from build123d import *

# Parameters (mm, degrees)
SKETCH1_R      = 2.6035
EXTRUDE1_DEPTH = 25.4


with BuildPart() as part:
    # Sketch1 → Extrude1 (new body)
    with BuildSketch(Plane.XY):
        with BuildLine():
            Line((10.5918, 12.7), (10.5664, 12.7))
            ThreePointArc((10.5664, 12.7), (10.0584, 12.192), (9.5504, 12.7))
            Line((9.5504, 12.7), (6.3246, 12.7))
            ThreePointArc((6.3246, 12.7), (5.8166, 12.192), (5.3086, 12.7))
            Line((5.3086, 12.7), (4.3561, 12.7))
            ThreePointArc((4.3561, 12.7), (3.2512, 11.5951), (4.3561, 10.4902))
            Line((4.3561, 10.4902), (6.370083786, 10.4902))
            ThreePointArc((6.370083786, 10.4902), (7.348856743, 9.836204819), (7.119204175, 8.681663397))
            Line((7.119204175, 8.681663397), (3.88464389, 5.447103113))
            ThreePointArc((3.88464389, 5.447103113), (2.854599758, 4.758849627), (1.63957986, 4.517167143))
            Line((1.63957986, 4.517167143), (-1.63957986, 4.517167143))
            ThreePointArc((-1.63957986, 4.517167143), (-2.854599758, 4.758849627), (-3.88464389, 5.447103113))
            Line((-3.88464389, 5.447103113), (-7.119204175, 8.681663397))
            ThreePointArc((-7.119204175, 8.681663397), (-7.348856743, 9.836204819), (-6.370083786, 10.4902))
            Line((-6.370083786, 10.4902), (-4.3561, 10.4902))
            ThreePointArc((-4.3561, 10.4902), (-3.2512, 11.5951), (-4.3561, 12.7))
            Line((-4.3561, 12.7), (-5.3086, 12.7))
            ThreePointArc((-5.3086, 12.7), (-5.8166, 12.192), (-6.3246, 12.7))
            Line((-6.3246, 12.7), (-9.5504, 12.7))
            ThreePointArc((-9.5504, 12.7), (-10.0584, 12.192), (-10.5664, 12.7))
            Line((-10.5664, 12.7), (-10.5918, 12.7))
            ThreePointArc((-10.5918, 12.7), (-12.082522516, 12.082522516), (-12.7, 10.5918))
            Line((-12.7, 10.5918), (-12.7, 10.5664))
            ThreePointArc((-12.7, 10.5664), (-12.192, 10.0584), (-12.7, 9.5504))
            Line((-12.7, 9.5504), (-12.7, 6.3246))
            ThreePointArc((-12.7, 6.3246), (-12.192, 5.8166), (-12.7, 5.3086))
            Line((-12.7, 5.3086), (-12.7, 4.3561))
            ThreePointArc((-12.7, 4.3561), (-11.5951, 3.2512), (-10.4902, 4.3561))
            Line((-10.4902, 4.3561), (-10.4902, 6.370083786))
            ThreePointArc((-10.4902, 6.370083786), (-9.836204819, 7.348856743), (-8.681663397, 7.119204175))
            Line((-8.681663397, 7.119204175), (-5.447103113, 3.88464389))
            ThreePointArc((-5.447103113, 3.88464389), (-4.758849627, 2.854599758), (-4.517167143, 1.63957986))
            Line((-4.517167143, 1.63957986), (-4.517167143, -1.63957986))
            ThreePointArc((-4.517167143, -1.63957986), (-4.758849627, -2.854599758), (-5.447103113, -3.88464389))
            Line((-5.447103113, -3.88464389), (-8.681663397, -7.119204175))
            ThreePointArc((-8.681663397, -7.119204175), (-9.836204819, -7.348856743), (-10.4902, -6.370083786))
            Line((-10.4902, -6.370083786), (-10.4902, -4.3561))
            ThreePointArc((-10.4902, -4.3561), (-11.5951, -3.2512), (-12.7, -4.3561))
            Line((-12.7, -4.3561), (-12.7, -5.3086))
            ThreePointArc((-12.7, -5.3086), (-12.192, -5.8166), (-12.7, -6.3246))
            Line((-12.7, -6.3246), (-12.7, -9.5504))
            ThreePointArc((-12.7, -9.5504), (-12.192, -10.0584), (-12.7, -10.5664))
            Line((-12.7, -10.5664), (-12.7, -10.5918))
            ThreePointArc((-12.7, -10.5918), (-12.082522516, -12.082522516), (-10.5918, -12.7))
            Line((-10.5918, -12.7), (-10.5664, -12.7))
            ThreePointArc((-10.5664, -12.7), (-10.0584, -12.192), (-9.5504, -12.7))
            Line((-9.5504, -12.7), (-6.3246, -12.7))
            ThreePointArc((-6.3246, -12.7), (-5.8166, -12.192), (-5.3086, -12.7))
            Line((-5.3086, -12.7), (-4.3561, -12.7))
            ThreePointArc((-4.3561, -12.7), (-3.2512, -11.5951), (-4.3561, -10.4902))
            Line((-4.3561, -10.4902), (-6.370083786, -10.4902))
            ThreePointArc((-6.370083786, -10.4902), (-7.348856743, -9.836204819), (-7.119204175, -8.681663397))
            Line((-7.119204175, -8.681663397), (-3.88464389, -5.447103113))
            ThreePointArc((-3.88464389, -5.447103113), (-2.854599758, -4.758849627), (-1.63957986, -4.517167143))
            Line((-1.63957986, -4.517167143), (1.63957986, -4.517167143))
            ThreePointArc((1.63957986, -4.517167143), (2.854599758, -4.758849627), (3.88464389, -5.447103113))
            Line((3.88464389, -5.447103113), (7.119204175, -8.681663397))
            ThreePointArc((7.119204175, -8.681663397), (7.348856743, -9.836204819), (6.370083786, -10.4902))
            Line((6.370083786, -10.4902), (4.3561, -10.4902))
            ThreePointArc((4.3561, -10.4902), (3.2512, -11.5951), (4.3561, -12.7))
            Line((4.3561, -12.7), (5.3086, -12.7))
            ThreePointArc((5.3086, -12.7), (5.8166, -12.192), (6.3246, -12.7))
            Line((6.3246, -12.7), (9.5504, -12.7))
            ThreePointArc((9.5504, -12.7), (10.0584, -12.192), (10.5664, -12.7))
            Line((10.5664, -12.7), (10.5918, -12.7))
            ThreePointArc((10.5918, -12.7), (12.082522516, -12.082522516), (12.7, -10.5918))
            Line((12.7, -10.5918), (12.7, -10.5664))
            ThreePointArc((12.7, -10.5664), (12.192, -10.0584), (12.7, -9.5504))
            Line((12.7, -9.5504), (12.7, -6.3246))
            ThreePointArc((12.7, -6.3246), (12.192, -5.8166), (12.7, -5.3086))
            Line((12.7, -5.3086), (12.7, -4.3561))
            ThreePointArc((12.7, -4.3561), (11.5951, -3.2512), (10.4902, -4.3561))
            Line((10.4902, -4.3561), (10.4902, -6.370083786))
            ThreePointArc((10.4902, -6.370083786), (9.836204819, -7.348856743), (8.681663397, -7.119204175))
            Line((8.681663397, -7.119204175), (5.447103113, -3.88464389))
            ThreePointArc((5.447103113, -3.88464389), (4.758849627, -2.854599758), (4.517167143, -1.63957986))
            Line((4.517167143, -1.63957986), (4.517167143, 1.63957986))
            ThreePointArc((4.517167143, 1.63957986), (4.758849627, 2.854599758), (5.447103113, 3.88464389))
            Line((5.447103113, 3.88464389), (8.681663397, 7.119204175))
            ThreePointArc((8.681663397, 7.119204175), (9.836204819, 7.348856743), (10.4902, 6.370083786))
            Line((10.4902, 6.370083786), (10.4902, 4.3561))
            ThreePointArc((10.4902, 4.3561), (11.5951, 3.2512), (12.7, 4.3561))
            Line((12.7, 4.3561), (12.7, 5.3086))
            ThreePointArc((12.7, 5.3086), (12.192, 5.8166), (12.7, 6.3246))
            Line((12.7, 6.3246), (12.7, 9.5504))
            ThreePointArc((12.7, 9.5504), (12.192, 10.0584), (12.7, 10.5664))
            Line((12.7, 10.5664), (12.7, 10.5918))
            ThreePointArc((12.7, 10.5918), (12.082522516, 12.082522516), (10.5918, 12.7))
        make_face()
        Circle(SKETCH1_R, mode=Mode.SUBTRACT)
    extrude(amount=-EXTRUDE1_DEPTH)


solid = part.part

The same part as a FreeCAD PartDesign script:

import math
import FreeCAD as App
import Part
import Sketcher
Q = App.Units.Quantity

doc = App.newDocument("Part")
body = doc.addObject("PartDesign::Body", "Body")

# Sketch on XY plane
sketch1 = body.newObject("Sketcher::SketchObject", "Sketch")
sketch1.AttachmentSupport = (doc.getObject("XY_Plane"), [""])
sketch1.MapMode = "FlatFace"
sketch1.addGeometry(Part.LineSegment(App.Vector(10.5918, 12.7, 0), App.Vector(10.5664, 12.7, 0)), False)
sketch1.addGeometry(Part.ArcOfCircle(Part.Circle(App.Vector(10.0584, 12.7, 0), App.Vector(0, 0, 1), 0.508), math.radians(180), math.radians(360)), False)
sketch1.addGeometry(Part.LineSegment(App.Vector(9.5504, 12.7, 0), App.Vector(6.3246, 12.7, 0)), False)
sketch1.addGeometry(Part.ArcOfCircle(Part.Circle(App.Vector(5.8166, 12.7, 0), App.Vector(0, 0, 1), 0.508), math.radians(180), math.radians(360)), False)
sketch1.addGeometry(Part.LineSegment(App.Vector(5.3086, 12.7, 0), App.Vector(4.3561, 12.7, 0)), False)
sketch1.addGeometry(Part.ArcOfCircle(Part.Circle(App.Vector(4.3561, 11.5951, 0), App.Vector(0, 0, 1), 1.1049), math.radians(90), math.radians(270)), False)
sketch1.addGeometry(Part.LineSegment(App.Vector(4.3561, 10.4902, 0), App.Vector(6.370084, 10.4902, 0)), False)
sketch1.addGeometry(Part.ArcOfCircle(Part.Circle(App.Vector(6.370084, 9.430784, 0), App.Vector(0, 0, 1), 1.059416), math.radians(-45), math.radians(90)), False)
sketch1.addGeometry(Part.LineSegment(App.Vector(7.119204, 8.681663, 0), App.Vector(3.884644, 5.447103, 0)), False)
sketch1.addGeometry(Part.ArcOfCircle(Part.Circle(App.Vector(1.63958, 7.692167, 0), App.Vector(0, 0, 1), 3.175), math.radians(-90), math.radians(-45)), False)
sketch1.addGeometry(Part.LineSegment(App.Vector(1.63958, 4.517167, 0), App.Vector(-1.63958, 4.517167, 0)), False)
sketch1.addGeometry(Part.ArcOfCircle(Part.Circle(App.Vector(-1.63958, 7.692167, 0), App.Vector(0, 0, 1), 3.175), math.radians(-135), math.radians(-90)), False)
sketch1.addGeometry(Part.LineSegment(App.Vector(-3.884644, 5.447103, 0), App.Vector(-7.119204, 8.681663, 0)), False)
sketch1.addGeometry(Part.ArcOfCircle(Part.Circle(App.Vector(-6.370084, 9.430784, 0), App.Vector(0, 0, 1), 1.059416), math.radians(90), math.radians(225)), False)
sketch1.addGeometry(Part.LineSegment(App.Vector(-6.370084, 10.4902, 0), App.Vector(-4.3561, 10.4902, 0)), False)
sketch1.addGeometry(Part.ArcOfCircle(Part.Circle(App.Vector(-4.3561, 11.5951, 0), App.Vector(0, 0, 1), 1.1049), math.radians(-90), math.radians(90)), False)
sketch1.addGeometry(Part.LineSegment(App.Vector(-4.3561, 12.7, 0), App.Vector(-5.3086, 12.7, 0)), False)
sketch1.addGeometry(Part.ArcOfCircle(Part.Circle(App.Vector(-5.8166, 12.7, 0), App.Vector(0, 0, 1), 0.508), math.radians(180), math.radians(360)), False)
sketch1.addGeometry(Part.LineSegment(App.Vector(-6.3246, 12.7, 0), App.Vector(-9.5504, 12.7, 0)), False)
sketch1.addGeometry(Part.ArcOfCircle(Part.Circle(App.Vector(-10.0584, 12.7, 0), App.Vector(0, 0, 1), 0.508), math.radians(180), math.radians(360)), False)
sketch1.addGeometry(Part.LineSegment(App.Vector(-10.5664, 12.7, 0), App.Vector(-10.5918, 12.7, 0)), False)
sketch1.addGeometry(Part.ArcOfCircle(Part.Circle(App.Vector(-10.5918, 10.5918, 0), App.Vector(0, 0, 1), 2.1082), math.radians(90), math.radians(180)), False)
sketch1.addGeometry(Part.LineSegment(App.Vector(-12.7, 10.5918, 0), App.Vector(-12.7, 10.5664, 0)), False)
sketch1.addGeometry(Part.ArcOfCircle(Part.Circle(App.Vector(-12.7, 10.0584, 0), App.Vector(0, 0, 1), 0.508), math.radians(-90), math.radians(90)), False)
sketch1.addGeometry(Part.LineSegment(App.Vector(-12.7, 9.5504, 0), App.Vector(-12.7, 6.3246, 0)), False)
sketch1.addGeometry(Part.ArcOfCircle(Part.Circle(App.Vector(-12.7, 5.8166, 0), App.Vector(0, 0, 1), 0.508), math.radians(-90), math.radians(90)), False)
sketch1.addGeometry(Part.LineSegment(App.Vector(-12.7, 5.3086, 0), App.Vector(-12.7, 4.3561, 0)), False)
sketch1.addGeometry(Part.ArcOfCircle(Part.Circle(App.Vector(-11.5951, 4.3561, 0), App.Vector(0, 0, 1), 1.1049), math.radians(180), math.radians(360)), False)
sketch1.addGeometry(Part.LineSegment(App.Vector(-10.4902, 4.3561, 0), App.Vector(-10.4902, 6.370084, 0)), False)
sketch1.addGeometry(Part.ArcOfCircle(Part.Circle(App.Vector(-9.430784, 6.370084, 0), App.Vector(0, 0, 1), 1.059416), math.radians(45), math.radians(180)), False)
sketch1.addGeometry(Part.LineSegment(App.Vector(-8.681663, 7.119204, 0), App.Vector(-5.447103, 3.884644, 0)), False)
sketch1.addGeometry(Part.ArcOfCircle(Part.Circle(App.Vector(-7.692167, 1.63958, 0), App.Vector(0, 0, 1), 3.175), math.radians(0), math.radians(45)), False)
sketch1.addGeometry(Part.LineSegment(App.Vector(-4.517167, 1.63958, 0), App.Vector(-4.517167, -1.63958, 0)), False)
sketch1.addGeometry(Part.ArcOfCircle(Part.Circle(App.Vector(-7.692167, -1.63958, 0), App.Vector(0, 0, 1), 3.175), math.radians(-45), math.radians(0)), False)
sketch1.addGeometry(Part.LineSegment(App.Vector(-5.447103, -3.884644, 0), App.Vector(-8.681663, -7.119204, 0)), False)
sketch1.addGeometry(Part.ArcOfCircle(Part.Circle(App.Vector(-9.430784, -6.370084, 0), App.Vector(0, 0, 1), 1.059416), math.radians(180), math.radians(315)), False)
sketch1.addGeometry(Part.LineSegment(App.Vector(-10.4902, -6.370084, 0), App.Vector(-10.4902, -4.3561, 0)), False)
sketch1.addGeometry(Part.ArcOfCircle(Part.Circle(App.Vector(-11.5951, -4.3561, 0), App.Vector(0, 0, 1), 1.1049), math.radians(0), math.radians(180)), False)
sketch1.addGeometry(Part.LineSegment(App.Vector(-12.7, -4.3561, 0), App.Vector(-12.7, -5.3086, 0)), False)
sketch1.addGeometry(Part.ArcOfCircle(Part.Circle(App.Vector(-12.7, -5.8166, 0), App.Vector(0, 0, 1), 0.508), math.radians(-90), math.radians(90)), False)
sketch1.addGeometry(Part.LineSegment(App.Vector(-12.7, -6.3246, 0), App.Vector(-12.7, -9.5504, 0)), False)
sketch1.addGeometry(Part.ArcOfCircle(Part.Circle(App.Vector(-12.7, -10.0584, 0), App.Vector(0, 0, 1), 0.508), math.radians(-90), math.radians(90)), False)
sketch1.addGeometry(Part.LineSegment(App.Vector(-12.7, -10.5664, 0), App.Vector(-12.7, -10.5918, 0)), False)
sketch1.addGeometry(Part.ArcOfCircle(Part.Circle(App.Vector(-10.5918, -10.5918, 0), App.Vector(0, 0, 1), 2.1082), math.radians(180), math.radians(270)), False)
sketch1.addGeometry(Part.LineSegment(App.Vector(-10.5918, -12.7, 0), App.Vector(-10.5664, -12.7, 0)), False)
sketch1.addGeometry(Part.ArcOfCircle(Part.Circle(App.Vector(-10.0584, -12.7, 0), App.Vector(0, 0, 1), 0.508), math.radians(0), math.radians(180)), False)
sketch1.addGeometry(Part.LineSegment(App.Vector(-9.5504, -12.7, 0), App.Vector(-6.3246, -12.7, 0)), False)
sketch1.addGeometry(Part.ArcOfCircle(Part.Circle(App.Vector(-5.8166, -12.7, 0), App.Vector(0, 0, 1), 0.508), math.radians(0), math.radians(180)), False)
sketch1.addGeometry(Part.LineSegment(App.Vector(-5.3086, -12.7, 0), App.Vector(-4.3561, -12.7, 0)), False)
sketch1.addGeometry(Part.ArcOfCircle(Part.Circle(App.Vector(-4.3561, -11.5951, 0), App.Vector(0, 0, 1), 1.1049), math.radians(-90), math.radians(90)), False)
sketch1.addGeometry(Part.LineSegment(App.Vector(-4.3561, -10.4902, 0), App.Vector(-6.370084, -10.4902, 0)), False)
sketch1.addGeometry(Part.ArcOfCircle(Part.Circle(App.Vector(-6.370084, -9.430784, 0), App.Vector(0, 0, 1), 1.059416), math.radians(135), math.radians(270)), False)
sketch1.addGeometry(Part.LineSegment(App.Vector(-7.119204, -8.681663, 0), App.Vector(-3.884644, -5.447103, 0)), False)
sketch1.addGeometry(Part.ArcOfCircle(Part.Circle(App.Vector(-1.63958, -7.692167, 0), App.Vector(0, 0, 1), 3.175), math.radians(90), math.radians(135)), False)
sketch1.addGeometry(Part.LineSegment(App.Vector(-1.63958, -4.517167, 0), App.Vector(1.63958, -4.517167, 0)), False)
sketch1.addGeometry(Part.ArcOfCircle(Part.Circle(App.Vector(1.63958, -7.692167, 0), App.Vector(0, 0, 1), 3.175), math.radians(45), math.radians(90)), False)
sketch1.addGeometry(Part.LineSegment(App.Vector(3.884644, -5.447103, 0), App.Vector(7.119204, -8.681663, 0)), False)
sketch1.addGeometry(Part.ArcOfCircle(Part.Circle(App.Vector(6.370084, -9.430784, 0), App.Vector(0, 0, 1), 1.059416), math.radians(-90), math.radians(45)), False)
sketch1.addGeometry(Part.LineSegment(App.Vector(6.370084, -10.4902, 0), App.Vector(4.3561, -10.4902, 0)), False)
sketch1.addGeometry(Part.ArcOfCircle(Part.Circle(App.Vector(4.3561, -11.5951, 0), App.Vector(0, 0, 1), 1.1049), math.radians(90), math.radians(270)), False)
sketch1.addGeometry(Part.LineSegment(App.Vector(4.3561, -12.7, 0), App.Vector(5.3086, -12.7, 0)), False)
sketch1.addGeometry(Part.ArcOfCircle(Part.Circle(App.Vector(5.8166, -12.7, 0), App.Vector(0, 0, 1), 0.508), math.radians(0), math.radians(180)), False)
sketch1.addGeometry(Part.LineSegment(App.Vector(6.3246, -12.7, 0), App.Vector(9.5504, -12.7, 0)), False)
sketch1.addGeometry(Part.ArcOfCircle(Part.Circle(App.Vector(10.0584, -12.7, 0), App.Vector(0, 0, 1), 0.508), math.radians(0), math.radians(180)), False)
sketch1.addGeometry(Part.LineSegment(App.Vector(10.5664, -12.7, 0), App.Vector(10.5918, -12.7, 0)), False)
sketch1.addGeometry(Part.ArcOfCircle(Part.Circle(App.Vector(10.5918, -10.5918, 0), App.Vector(0, 0, 1), 2.1082), math.radians(-90), math.radians(0)), False)
sketch1.addGeometry(Part.LineSegment(App.Vector(12.7, -10.5918, 0), App.Vector(12.7, -10.5664, 0)), False)
sketch1.addGeometry(Part.ArcOfCircle(Part.Circle(App.Vector(12.7, -10.0584, 0), App.Vector(0, 0, 1), 0.508), math.radians(90), math.radians(270)), False)
sketch1.addGeometry(Part.LineSegment(App.Vector(12.7, -9.5504, 0), App.Vector(12.7, -6.3246, 0)), False)
sketch1.addGeometry(Part.ArcOfCircle(Part.Circle(App.Vector(12.7, -5.8166, 0), App.Vector(0, 0, 1), 0.508), math.radians(90), math.radians(270)), False)
sketch1.addGeometry(Part.LineSegment(App.Vector(12.7, -5.3086, 0), App.Vector(12.7, -4.3561, 0)), False)
sketch1.addGeometry(Part.ArcOfCircle(Part.Circle(App.Vector(11.5951, -4.3561, 0), App.Vector(0, 0, 1), 1.1049), math.radians(0), math.radians(180)), False)
sketch1.addGeometry(Part.LineSegment(App.Vector(10.4902, -4.3561, 0), App.Vector(10.4902, -6.370084, 0)), False)
sketch1.addGeometry(Part.ArcOfCircle(Part.Circle(App.Vector(9.430784, -6.370084, 0), App.Vector(0, 0, 1), 1.059416), math.radians(-135), math.radians(0)), False)
sketch1.addGeometry(Part.LineSegment(App.Vector(8.681663, -7.119204, 0), App.Vector(5.447103, -3.884644, 0)), False)
sketch1.addGeometry(Part.ArcOfCircle(Part.Circle(App.Vector(7.692167, -1.63958, 0), App.Vector(0, 0, 1), 3.175), math.radians(180), math.radians(225)), False)
sketch1.addGeometry(Part.LineSegment(App.Vector(4.517167, -1.63958, 0), App.Vector(4.517167, 1.63958, 0)), False)
sketch1.addGeometry(Part.ArcOfCircle(Part.Circle(App.Vector(7.692167, 1.63958, 0), App.Vector(0, 0, 1), 3.175), math.radians(135), math.radians(180)), False)
sketch1.addGeometry(Part.LineSegment(App.Vector(5.447103, 3.884644, 0), App.Vector(8.681663, 7.119204, 0)), False)
sketch1.addGeometry(Part.ArcOfCircle(Part.Circle(App.Vector(9.430784, 6.370084, 0), App.Vector(0, 0, 1), 1.059416), math.radians(0), math.radians(135)), False)
sketch1.addGeometry(Part.LineSegment(App.Vector(10.4902, 6.370084, 0), App.Vector(10.4902, 4.3561, 0)), False)
sketch1.addGeometry(Part.ArcOfCircle(Part.Circle(App.Vector(11.5951, 4.3561, 0), App.Vector(0, 0, 1), 1.1049), math.radians(180), math.radians(360)), False)
sketch1.addGeometry(Part.LineSegment(App.Vector(12.7, 4.3561, 0), App.Vector(12.7, 5.3086, 0)), False)
sketch1.addGeometry(Part.ArcOfCircle(Part.Circle(App.Vector(12.7, 5.8166, 0), App.Vector(0, 0, 1), 0.508), math.radians(90), math.radians(270)), False)
sketch1.addGeometry(Part.LineSegment(App.Vector(12.7, 6.3246, 0), App.Vector(12.7, 9.5504, 0)), False)
sketch1.addGeometry(Part.ArcOfCircle(Part.Circle(App.Vector(12.7, 10.0584, 0), App.Vector(0, 0, 1), 0.508), math.radians(90), math.radians(270)), False)
sketch1.addGeometry(Part.LineSegment(App.Vector(12.7, 10.5664, 0), App.Vector(12.7, 10.5918, 0)), False)
sketch1.addGeometry(Part.ArcOfCircle(Part.Circle(App.Vector(10.5918, 10.5918, 0), App.Vector(0, 0, 1), 2.1082), math.radians(0), math.radians(90)), False)
sketch1.addGeometry(Part.Circle(App.Vector(0, 0, 0), App.Vector(0, 0, 1), 2.6035), False)
sketch1.addConstraint(Sketcher.Constraint("Coincident", 0, 2, 1, 2))
sketch1.addConstraint(Sketcher.Constraint("Coincident", 1, 1, 2, 1))
sketch1.addConstraint(Sketcher.Constraint("Coincident", 2, 2, 3, 2))
sketch1.addConstraint(Sketcher.Constraint("Coincident", 3, 1, 4, 1))
sketch1.addConstraint(Sketcher.Constraint("Tangent", 4, 2, 5, 1))
sketch1.addConstraint(Sketcher.Constraint("Tangent", 5, 2, 6, 1))
sketch1.addConstraint(Sketcher.Constraint("Tangent", 6, 2, 7, 2))
sketch1.addConstraint(Sketcher.Constraint("Tangent", 7, 1, 8, 1))
sketch1.addConstraint(Sketcher.Constraint("Tangent", 8, 2, 9, 2))
sketch1.addConstraint(Sketcher.Constraint("Tangent", 9, 1, 10, 1))
sketch1.addConstraint(Sketcher.Constraint("Tangent", 10, 2, 11, 2))
sketch1.addConstraint(Sketcher.Constraint("Tangent", 11, 1, 12, 1))
sketch1.addConstraint(Sketcher.Constraint("Tangent", 12, 2, 13, 2))
sketch1.addConstraint(Sketcher.Constraint("Tangent", 13, 1, 14, 1))
sketch1.addConstraint(Sketcher.Constraint("Tangent", 14, 2, 15, 1))
sketch1.addConstraint(Sketcher.Constraint("Tangent", 15, 2, 16, 1))
sketch1.addConstraint(Sketcher.Constraint("Coincident", 16, 2, 17, 2))
sketch1.addConstraint(Sketcher.Constraint("Coincident", 17, 1, 18, 1))
sketch1.addConstraint(Sketcher.Constraint("Coincident", 18, 2, 19, 2))
sketch1.addConstraint(Sketcher.Constraint("Coincident", 19, 1, 20, 1))
sketch1.addConstraint(Sketcher.Constraint("Tangent", 20, 2, 21, 1))
sketch1.addConstraint(Sketcher.Constraint("Tangent", 21, 2, 22, 1))
sketch1.addConstraint(Sketcher.Constraint("Coincident", 22, 2, 23, 2))
sketch1.addConstraint(Sketcher.Constraint("Coincident", 23, 1, 24, 1))
sketch1.addConstraint(Sketcher.Constraint("Coincident", 24, 2, 25, 2))
sketch1.addConstraint(Sketcher.Constraint("Coincident", 25, 1, 26, 1))
sketch1.addConstraint(Sketcher.Constraint("Tangent", 26, 2, 27, 1))
sketch1.addConstraint(Sketcher.Constraint("Tangent", 27, 2, 28, 1))
sketch1.addConstraint(Sketcher.Constraint("Tangent", 28, 2, 29, 2))
sketch1.addConstraint(Sketcher.Constraint("Tangent", 29, 1, 30, 1))
sketch1.addConstraint(Sketcher.Constraint("Tangent", 30, 2, 31, 2))
sketch1.addConstraint(Sketcher.Constraint("Tangent", 31, 1, 32, 1))
sketch1.addConstraint(Sketcher.Constraint("Tangent", 32, 2, 33, 2))
sketch1.addConstraint(Sketcher.Constraint("Tangent", 33, 1, 34, 1))
sketch1.addConstraint(Sketcher.Constraint("Tangent", 34, 2, 35, 2))
sketch1.addConstraint(Sketcher.Constraint("Tangent", 35, 1, 36, 1))
sketch1.addConstraint(Sketcher.Constraint("Tangent", 36, 2, 37, 1))
sketch1.addConstraint(Sketcher.Constraint("Tangent", 37, 2, 38, 1))
sketch1.addConstraint(Sketcher.Constraint("Coincident", 38, 2, 39, 2))
sketch1.addConstraint(Sketcher.Constraint("Coincident", 39, 1, 40, 1))
sketch1.addConstraint(Sketcher.Constraint("Coincident", 40, 2, 41, 2))
sketch1.addConstraint(Sketcher.Constraint("Coincident", 41, 1, 42, 1))
sketch1.addConstraint(Sketcher.Constraint("Tangent", 42, 2, 43, 1))
sketch1.addConstraint(Sketcher.Constraint("Tangent", 43, 2, 44, 1))
sketch1.addConstraint(Sketcher.Constraint("Coincident", 44, 2, 45, 2))
sketch1.addConstraint(Sketcher.Constraint("Coincident", 45, 1, 46, 1))
sketch1.addConstraint(Sketcher.Constraint("Coincident", 46, 2, 47, 2))
sketch1.addConstraint(Sketcher.Constraint("Coincident", 47, 1, 48, 1))
sketch1.addConstraint(Sketcher.Constraint("Tangent", 48, 2, 49, 1))
sketch1.addConstraint(Sketcher.Constraint("Tangent", 49, 2, 50, 1))
sketch1.addConstraint(Sketcher.Constraint("Tangent", 50, 2, 51, 2))
sketch1.addConstraint(Sketcher.Constraint("Tangent", 51, 1, 52, 1))
sketch1.addConstraint(Sketcher.Constraint("Tangent", 52, 2, 53, 2))
sketch1.addConstraint(Sketcher.Constraint("Tangent", 53, 1, 54, 1))
sketch1.addConstraint(Sketcher.Constraint("Tangent", 54, 2, 55, 2))
sketch1.addConstraint(Sketcher.Constraint("Tangent", 55, 1, 56, 1))
sketch1.addConstraint(Sketcher.Constraint("Tangent", 56, 2, 57, 2))
sketch1.addConstraint(Sketcher.Constraint("Tangent", 57, 1, 58, 1))
sketch1.addConstraint(Sketcher.Constraint("Tangent", 58, 2, 59, 1))
sketch1.addConstraint(Sketcher.Constraint("Tangent", 59, 2, 60, 1))
sketch1.addConstraint(Sketcher.Constraint("Coincident", 60, 2, 61, 2))
sketch1.addConstraint(Sketcher.Constraint("Coincident", 61, 1, 62, 1))
sketch1.addConstraint(Sketcher.Constraint("Coincident", 62, 2, 63, 2))
sketch1.addConstraint(Sketcher.Constraint("Coincident", 63, 1, 64, 1))
sketch1.addConstraint(Sketcher.Constraint("Tangent", 64, 2, 65, 1))
sketch1.addConstraint(Sketcher.Constraint("Tangent", 65, 2, 66, 1))
sketch1.addConstraint(Sketcher.Constraint("Coincident", 66, 2, 67, 2))
sketch1.addConstraint(Sketcher.Constraint("Coincident", 67, 1, 68, 1))
sketch1.addConstraint(Sketcher.Constraint("Coincident", 68, 2, 69, 2))
sketch1.addConstraint(Sketcher.Constraint("Coincident", 69, 1, 70, 1))
sketch1.addConstraint(Sketcher.Constraint("Tangent", 70, 2, 71, 1))
sketch1.addConstraint(Sketcher.Constraint("Tangent", 71, 2, 72, 1))
sketch1.addConstraint(Sketcher.Constraint("Tangent", 72, 2, 73, 2))
sketch1.addConstraint(Sketcher.Constraint("Tangent", 73, 1, 74, 1))
sketch1.addConstraint(Sketcher.Constraint("Tangent", 74, 2, 75, 2))
sketch1.addConstraint(Sketcher.Constraint("Tangent", 75, 1, 76, 1))
sketch1.addConstraint(Sketcher.Constraint("Tangent", 76, 2, 77, 2))
sketch1.addConstraint(Sketcher.Constraint("Tangent", 77, 1, 78, 1))
sketch1.addConstraint(Sketcher.Constraint("Tangent", 78, 2, 79, 2))
sketch1.addConstraint(Sketcher.Constraint("Tangent", 79, 1, 80, 1))
sketch1.addConstraint(Sketcher.Constraint("Tangent", 80, 2, 81, 1))
sketch1.addConstraint(Sketcher.Constraint("Tangent", 81, 2, 82, 1))
sketch1.addConstraint(Sketcher.Constraint("Coincident", 82, 2, 83, 2))
sketch1.addConstraint(Sketcher.Constraint("Coincident", 83, 1, 84, 1))
sketch1.addConstraint(Sketcher.Constraint("Coincident", 84, 2, 85, 2))
sketch1.addConstraint(Sketcher.Constraint("Coincident", 85, 1, 86, 1))
sketch1.addConstraint(Sketcher.Constraint("Tangent", 86, 2, 87, 1))
sketch1.addConstraint(Sketcher.Constraint("Tangent", 87, 2, 0, 1))
sketch1.addConstraint(Sketcher.Constraint("Horizontal", 0))
sketch1.addConstraint(Sketcher.Constraint("Horizontal", 2))
sketch1.addConstraint(Sketcher.Constraint("Horizontal", 4))
sketch1.addConstraint(Sketcher.Constraint("Horizontal", 6))
sketch1.addConstraint(Sketcher.Constraint("Horizontal", 10))
sketch1.addConstraint(Sketcher.Constraint("Horizontal", 14))
sketch1.addConstraint(Sketcher.Constraint("Horizontal", 16))
sketch1.addConstraint(Sketcher.Constraint("Horizontal", 18))
sketch1.addConstraint(Sketcher.Constraint("Horizontal", 20))
sketch1.addConstraint(Sketcher.Constraint("Vertical", 22))
sketch1.addConstraint(Sketcher.Constraint("Vertical", 24))
sketch1.addConstraint(Sketcher.Constraint("Vertical", 26))
sketch1.addConstraint(Sketcher.Constraint("Vertical", 28))
sketch1.addConstraint(Sketcher.Constraint("Vertical", 32))
sketch1.addConstraint(Sketcher.Constraint("Vertical", 36))
sketch1.addConstraint(Sketcher.Constraint("Vertical", 38))
sketch1.addConstraint(Sketcher.Constraint("Vertical", 40))
sketch1.addConstraint(Sketcher.Constraint("Vertical", 42))
sketch1.addConstraint(Sketcher.Constraint("Horizontal", 44))
sketch1.addConstraint(Sketcher.Constraint("Horizontal", 46))
sketch1.addConstraint(Sketcher.Constraint("Horizontal", 48))
sketch1.addConstraint(Sketcher.Constraint("Horizontal", 50))
sketch1.addConstraint(Sketcher.Constraint("Horizontal", 54))
sketch1.addConstraint(Sketcher.Constraint("Horizontal", 58))
sketch1.addConstraint(Sketcher.Constraint("Horizontal", 60))
sketch1.addConstraint(Sketcher.Constraint("Horizontal", 62))
sketch1.addConstraint(Sketcher.Constraint("Horizontal", 64))
sketch1.addConstraint(Sketcher.Constraint("Vertical", 66))
sketch1.addConstraint(Sketcher.Constraint("Vertical", 68))
sketch1.addConstraint(Sketcher.Constraint("Vertical", 70))
sketch1.addConstraint(Sketcher.Constraint("Vertical", 72))
sketch1.addConstraint(Sketcher.Constraint("Vertical", 76))
sketch1.addConstraint(Sketcher.Constraint("Vertical", 80))
sketch1.addConstraint(Sketcher.Constraint("Vertical", 82))
sketch1.addConstraint(Sketcher.Constraint("Vertical", 84))
sketch1.addConstraint(Sketcher.Constraint("Vertical", 86))
sketch1.addConstraint(Sketcher.Constraint("Coincident", 88, 3, -1, 1))
sketch1.addConstraint(Sketcher.Constraint("Equal", 1, 3))
sketch1.addConstraint(Sketcher.Constraint("Equal", 9, 11))
sketch1.addConstraint(Sketcher.Constraint("Equal", 7, 13))
sketch1.addConstraint(Sketcher.Constraint("Equal", 5, 15))
sketch1.addConstraint(Sketcher.Constraint("Equal", 3, 17))
sketch1.addConstraint(Sketcher.Constraint("Equal", 17, 19))
sketch1.addConstraint(Sketcher.Constraint("Equal", 19, 23))
sketch1.addConstraint(Sketcher.Constraint("Equal", 23, 25))
sketch1.addConstraint(Sketcher.Constraint("Equal", 15, 27))
sketch1.addConstraint(Sketcher.Constraint("Equal", 13, 29))
sketch1.addConstraint(Sketcher.Constraint("Equal", 11, 31))
sketch1.addConstraint(Sketcher.Constraint("Equal", 31, 33))
sketch1.addConstraint(Sketcher.Constraint("Equal", 29, 35))
sketch1.addConstraint(Sketcher.Constraint("Equal", 27, 37))
sketch1.addConstraint(Sketcher.Constraint("Equal", 25, 39))
sketch1.addConstraint(Sketcher.Constraint("Equal", 39, 41))
sketch1.addConstraint(Sketcher.Constraint("Equal", 21, 43))
sketch1.addConstraint(Sketcher.Constraint("Equal", 41, 45))
sketch1.addConstraint(Sketcher.Constraint("Equal", 45, 47))
sketch1.addConstraint(Sketcher.Constraint("Equal", 37, 49))
sketch1.addConstraint(Sketcher.Constraint("Equal", 35, 51))
sketch1.addConstraint(Sketcher.Constraint("Equal", 33, 53))
sketch1.addConstraint(Sketcher.Constraint("Equal", 53, 55))
sketch1.addConstraint(Sketcher.Constraint("Equal", 51, 57))
sketch1.addConstraint(Sketcher.Constraint("Equal", 49, 59))
sketch1.addConstraint(Sketcher.Constraint("Equal", 47, 61))
sketch1.addConstraint(Sketcher.Constraint("Equal", 61, 63))
sketch1.addConstraint(Sketcher.Constraint("Equal", 43, 65))
sketch1.addConstraint(Sketcher.Constraint("Equal", 63, 67))
sketch1.addConstraint(Sketcher.Constraint("Equal", 67, 69))
sketch1.addConstraint(Sketcher.Constraint("Equal", 59, 71))
sketch1.addConstraint(Sketcher.Constraint("Equal", 57, 73))
sketch1.addConstraint(Sketcher.Constraint("Equal", 55, 75))
sketch1.addConstraint(Sketcher.Constraint("Equal", 75, 77))
sketch1.addConstraint(Sketcher.Constraint("Equal", 73, 79))
sketch1.addConstraint(Sketcher.Constraint("Equal", 71, 81))
sketch1.addConstraint(Sketcher.Constraint("Equal", 69, 83))
sketch1.addConstraint(Sketcher.Constraint("Equal", 83, 85))
sketch1.addConstraint(Sketcher.Constraint("Equal", 65, 87))
sketch1.addConstraint(Sketcher.Constraint("Symmetric", 1, 3, 45, 3, -1, 1))
sketch1.addConstraint(Sketcher.Constraint("Symmetric", 3, 3, 47, 3, -1, 1))
sketch1.addConstraint(Sketcher.Constraint("Symmetric", 5, 3, 49, 3, -1, 1))
sketch1.addConstraint(Sketcher.Constraint("Symmetric", 9, 3, 53, 3, -1, 1))
sketch1.addConstraint(Sketcher.Constraint("Symmetric", 13, 3, 57, 3, -1, 1))
sketch1.addConstraint(Sketcher.Constraint("Symmetric", 17, 3, 61, 3, -1, 1))
sketch1.addConstraint(Sketcher.Constraint("Symmetric", 19, 3, 63, 3, -1, 1))
sketch1.addConstraint(Sketcher.Constraint("Symmetric", 21, 3, 65, 3, -1, 1))
sketch1.addConstraint(Sketcher.Constraint("Symmetric", 23, 3, 67, 3, -1, 1))
sketch1.addConstraint(Sketcher.Constraint("Symmetric", 25, 3, 69, 3, -1, 1))
sketch1.addConstraint(Sketcher.Constraint("Symmetric", 27, 3, 71, 3, -1, 1))
sketch1.addConstraint(Sketcher.Constraint("Symmetric", 31, 3, 75, 3, -1, 1))
sketch1.addConstraint(Sketcher.Constraint("Symmetric", 35, 3, 79, 3, -1, 1))
sketch1.addConstraint(Sketcher.Constraint("Symmetric", 39, 3, 83, 3, -1, 1))
sketch1.addConstraint(Sketcher.Constraint("Symmetric", 41, 3, 85, 3, -1, 1))
sketch1.addConstraint(Sketcher.Constraint("Symmetric", 43, 3, 87, 3, -1, 1))
sketch1.addConstraint(Sketcher.Constraint("Symmetric", 7, 3, 13, 3, -2))
sketch1.addConstraint(Sketcher.Constraint("Symmetric", 3, 3, 17, 3, -2))
sketch1.addConstraint(Sketcher.Constraint("Symmetric", 1, 3, 19, 3, -2))
sketch1.addConstraint(Sketcher.Constraint("Symmetric", 43, 3, 65, 3, -2))
sketch1.addConstraint(Sketcher.Constraint("Symmetric", 41, 3, 67, 3, -2))
sketch1.addConstraint(Sketcher.Constraint("Symmetric", 39, 3, 69, 3, -2))
sketch1.addConstraint(Sketcher.Constraint("Symmetric", 37, 3, 71, 3, -2))
sketch1.addConstraint(Sketcher.Constraint("Symmetric", 52, 2, 55, 1, -2))
sketch1.addConstraint(Sketcher.Constraint("Symmetric", 34, 2, 73, 1, -2))
sketch1.addConstraint(Sketcher.Constraint("Symmetric", 30, 2, 77, 1, -2))
sketch1.addConstraint(Sketcher.Constraint("Perpendicular", 8, 12))
sketch1.addConstraint(Sketcher.Constraint("Parallel", 12, 30))
sketch1.addConstraint(Sketcher.Constraint("Perpendicular", 30, 34))
sketch1.addConstraint(Sketcher.Constraint("Horizontal", 1, 3, 3, 3))
sketch1.addConstraint(Sketcher.Constraint("Horizontal", 27, 3, 81, 3))
sketch1.addConstraint(Sketcher.Constraint("Horizontal", 19, 3, 0, 2))
sketch1.addConstraint(Sketcher.Constraint("Horizontal", 0, 2, 1, 1))
sketch1.addConstraint(Sketcher.Constraint("Horizontal", 2, 2, 3, 1))
sketch1.addConstraint(Sketcher.Constraint("Horizontal", 16, 2, 17, 1))
sketch1.addConstraint(Sketcher.Constraint("Horizontal", 44, 2, 45, 1))
sketch1.addConstraint(Sketcher.Constraint("Horizontal", 60, 2, 61, 1))
sketch1.addConstraint(Sketcher.Constraint("Vertical", 23, 3, 25, 3))
sketch1.addConstraint(Sketcher.Constraint("Vertical", 15, 3, 49, 3))
sketch1.addConstraint(Sketcher.Constraint("Vertical", 5, 3, 59, 3))
sketch1.addConstraint(Sketcher.Constraint("Vertical", 41, 3, 21, 2))
sketch1.addConstraint(Sketcher.Constraint("Vertical", 22, 2, 23, 1))
sketch1.addConstraint(Sketcher.Constraint("Vertical", 24, 2, 25, 1))
sketch1.addConstraint(Sketcher.Constraint("Vertical", 38, 2, 39, 1))
sketch1.addConstraint(Sketcher.Constraint("Vertical", 66, 2, 67, 1))
sketch1.addConstraint(Sketcher.Constraint("Vertical", 82, 2, 83, 1))
sketch1.addConstraint(Sketcher.Constraint("Equal", 64, 22))
sketch1.addConstraint(Sketcher.Constraint("Equal", 62, 24))
sketch1.addConstraint(Sketcher.Constraint("Equal", 60, 26))
sketch1.addConstraint(Sketcher.Constraint("Equal", 58, 28))
sketch1.addConstraint(Sketcher.Constraint("Equal", 54, 32))
sketch1.addConstraint(Sketcher.Constraint("Equal", 12, 30))
sketch1.addConstraint(Sketcher.Constraint("Radius", 1, Q("0.02 in")))
sketch1.addConstraint(Sketcher.Constraint("Diameter", 88, Q("0.205 in")))
sketch1.addConstraint(Sketcher.Constraint("Radius", 9, Q("0.125 in")))
sketch1.addConstraint(Sketcher.Constraint("Radius", 21, Q("0.083 in")))
sketch1.addConstraint(Sketcher.Constraint("DistanceY", -1, 1, 1, 3, Q("0.5 in")))
sketch1.addConstraint(Sketcher.Constraint("Radius", 5, Q("0.0435 in")))
sketch1.addConstraint(Sketcher.Constraint("DistanceX", 0, 2, 0, 1, Q("0.001 in")))
sketch1.addConstraint(Sketcher.Constraint("DistanceX", 2, 2, 2, 1, Q("0.127 in")))
sketch1.addConstraint(Sketcher.Constraint("DistanceX", 4, 2, 4, 1, Q("0.0375 in")))
sketch1.addConstraint(Sketcher.Constraint("Radius", 7, Q("1.059416 mm")))
sketch1.addConstraint(Sketcher.Constraint("DistanceX", 10, 2, 10, 1, Q("3.27916 mm")))
sketch1.addConstraint(Sketcher.Constraint("Distance", 8, Q("4.574359 mm")))
pad1 = body.newObject("PartDesign::Pad", "Pad")
pad1.Profile = sketch1
pad1.Length = Q("1 in")
pad1.Reversed = True

doc.recompute()
